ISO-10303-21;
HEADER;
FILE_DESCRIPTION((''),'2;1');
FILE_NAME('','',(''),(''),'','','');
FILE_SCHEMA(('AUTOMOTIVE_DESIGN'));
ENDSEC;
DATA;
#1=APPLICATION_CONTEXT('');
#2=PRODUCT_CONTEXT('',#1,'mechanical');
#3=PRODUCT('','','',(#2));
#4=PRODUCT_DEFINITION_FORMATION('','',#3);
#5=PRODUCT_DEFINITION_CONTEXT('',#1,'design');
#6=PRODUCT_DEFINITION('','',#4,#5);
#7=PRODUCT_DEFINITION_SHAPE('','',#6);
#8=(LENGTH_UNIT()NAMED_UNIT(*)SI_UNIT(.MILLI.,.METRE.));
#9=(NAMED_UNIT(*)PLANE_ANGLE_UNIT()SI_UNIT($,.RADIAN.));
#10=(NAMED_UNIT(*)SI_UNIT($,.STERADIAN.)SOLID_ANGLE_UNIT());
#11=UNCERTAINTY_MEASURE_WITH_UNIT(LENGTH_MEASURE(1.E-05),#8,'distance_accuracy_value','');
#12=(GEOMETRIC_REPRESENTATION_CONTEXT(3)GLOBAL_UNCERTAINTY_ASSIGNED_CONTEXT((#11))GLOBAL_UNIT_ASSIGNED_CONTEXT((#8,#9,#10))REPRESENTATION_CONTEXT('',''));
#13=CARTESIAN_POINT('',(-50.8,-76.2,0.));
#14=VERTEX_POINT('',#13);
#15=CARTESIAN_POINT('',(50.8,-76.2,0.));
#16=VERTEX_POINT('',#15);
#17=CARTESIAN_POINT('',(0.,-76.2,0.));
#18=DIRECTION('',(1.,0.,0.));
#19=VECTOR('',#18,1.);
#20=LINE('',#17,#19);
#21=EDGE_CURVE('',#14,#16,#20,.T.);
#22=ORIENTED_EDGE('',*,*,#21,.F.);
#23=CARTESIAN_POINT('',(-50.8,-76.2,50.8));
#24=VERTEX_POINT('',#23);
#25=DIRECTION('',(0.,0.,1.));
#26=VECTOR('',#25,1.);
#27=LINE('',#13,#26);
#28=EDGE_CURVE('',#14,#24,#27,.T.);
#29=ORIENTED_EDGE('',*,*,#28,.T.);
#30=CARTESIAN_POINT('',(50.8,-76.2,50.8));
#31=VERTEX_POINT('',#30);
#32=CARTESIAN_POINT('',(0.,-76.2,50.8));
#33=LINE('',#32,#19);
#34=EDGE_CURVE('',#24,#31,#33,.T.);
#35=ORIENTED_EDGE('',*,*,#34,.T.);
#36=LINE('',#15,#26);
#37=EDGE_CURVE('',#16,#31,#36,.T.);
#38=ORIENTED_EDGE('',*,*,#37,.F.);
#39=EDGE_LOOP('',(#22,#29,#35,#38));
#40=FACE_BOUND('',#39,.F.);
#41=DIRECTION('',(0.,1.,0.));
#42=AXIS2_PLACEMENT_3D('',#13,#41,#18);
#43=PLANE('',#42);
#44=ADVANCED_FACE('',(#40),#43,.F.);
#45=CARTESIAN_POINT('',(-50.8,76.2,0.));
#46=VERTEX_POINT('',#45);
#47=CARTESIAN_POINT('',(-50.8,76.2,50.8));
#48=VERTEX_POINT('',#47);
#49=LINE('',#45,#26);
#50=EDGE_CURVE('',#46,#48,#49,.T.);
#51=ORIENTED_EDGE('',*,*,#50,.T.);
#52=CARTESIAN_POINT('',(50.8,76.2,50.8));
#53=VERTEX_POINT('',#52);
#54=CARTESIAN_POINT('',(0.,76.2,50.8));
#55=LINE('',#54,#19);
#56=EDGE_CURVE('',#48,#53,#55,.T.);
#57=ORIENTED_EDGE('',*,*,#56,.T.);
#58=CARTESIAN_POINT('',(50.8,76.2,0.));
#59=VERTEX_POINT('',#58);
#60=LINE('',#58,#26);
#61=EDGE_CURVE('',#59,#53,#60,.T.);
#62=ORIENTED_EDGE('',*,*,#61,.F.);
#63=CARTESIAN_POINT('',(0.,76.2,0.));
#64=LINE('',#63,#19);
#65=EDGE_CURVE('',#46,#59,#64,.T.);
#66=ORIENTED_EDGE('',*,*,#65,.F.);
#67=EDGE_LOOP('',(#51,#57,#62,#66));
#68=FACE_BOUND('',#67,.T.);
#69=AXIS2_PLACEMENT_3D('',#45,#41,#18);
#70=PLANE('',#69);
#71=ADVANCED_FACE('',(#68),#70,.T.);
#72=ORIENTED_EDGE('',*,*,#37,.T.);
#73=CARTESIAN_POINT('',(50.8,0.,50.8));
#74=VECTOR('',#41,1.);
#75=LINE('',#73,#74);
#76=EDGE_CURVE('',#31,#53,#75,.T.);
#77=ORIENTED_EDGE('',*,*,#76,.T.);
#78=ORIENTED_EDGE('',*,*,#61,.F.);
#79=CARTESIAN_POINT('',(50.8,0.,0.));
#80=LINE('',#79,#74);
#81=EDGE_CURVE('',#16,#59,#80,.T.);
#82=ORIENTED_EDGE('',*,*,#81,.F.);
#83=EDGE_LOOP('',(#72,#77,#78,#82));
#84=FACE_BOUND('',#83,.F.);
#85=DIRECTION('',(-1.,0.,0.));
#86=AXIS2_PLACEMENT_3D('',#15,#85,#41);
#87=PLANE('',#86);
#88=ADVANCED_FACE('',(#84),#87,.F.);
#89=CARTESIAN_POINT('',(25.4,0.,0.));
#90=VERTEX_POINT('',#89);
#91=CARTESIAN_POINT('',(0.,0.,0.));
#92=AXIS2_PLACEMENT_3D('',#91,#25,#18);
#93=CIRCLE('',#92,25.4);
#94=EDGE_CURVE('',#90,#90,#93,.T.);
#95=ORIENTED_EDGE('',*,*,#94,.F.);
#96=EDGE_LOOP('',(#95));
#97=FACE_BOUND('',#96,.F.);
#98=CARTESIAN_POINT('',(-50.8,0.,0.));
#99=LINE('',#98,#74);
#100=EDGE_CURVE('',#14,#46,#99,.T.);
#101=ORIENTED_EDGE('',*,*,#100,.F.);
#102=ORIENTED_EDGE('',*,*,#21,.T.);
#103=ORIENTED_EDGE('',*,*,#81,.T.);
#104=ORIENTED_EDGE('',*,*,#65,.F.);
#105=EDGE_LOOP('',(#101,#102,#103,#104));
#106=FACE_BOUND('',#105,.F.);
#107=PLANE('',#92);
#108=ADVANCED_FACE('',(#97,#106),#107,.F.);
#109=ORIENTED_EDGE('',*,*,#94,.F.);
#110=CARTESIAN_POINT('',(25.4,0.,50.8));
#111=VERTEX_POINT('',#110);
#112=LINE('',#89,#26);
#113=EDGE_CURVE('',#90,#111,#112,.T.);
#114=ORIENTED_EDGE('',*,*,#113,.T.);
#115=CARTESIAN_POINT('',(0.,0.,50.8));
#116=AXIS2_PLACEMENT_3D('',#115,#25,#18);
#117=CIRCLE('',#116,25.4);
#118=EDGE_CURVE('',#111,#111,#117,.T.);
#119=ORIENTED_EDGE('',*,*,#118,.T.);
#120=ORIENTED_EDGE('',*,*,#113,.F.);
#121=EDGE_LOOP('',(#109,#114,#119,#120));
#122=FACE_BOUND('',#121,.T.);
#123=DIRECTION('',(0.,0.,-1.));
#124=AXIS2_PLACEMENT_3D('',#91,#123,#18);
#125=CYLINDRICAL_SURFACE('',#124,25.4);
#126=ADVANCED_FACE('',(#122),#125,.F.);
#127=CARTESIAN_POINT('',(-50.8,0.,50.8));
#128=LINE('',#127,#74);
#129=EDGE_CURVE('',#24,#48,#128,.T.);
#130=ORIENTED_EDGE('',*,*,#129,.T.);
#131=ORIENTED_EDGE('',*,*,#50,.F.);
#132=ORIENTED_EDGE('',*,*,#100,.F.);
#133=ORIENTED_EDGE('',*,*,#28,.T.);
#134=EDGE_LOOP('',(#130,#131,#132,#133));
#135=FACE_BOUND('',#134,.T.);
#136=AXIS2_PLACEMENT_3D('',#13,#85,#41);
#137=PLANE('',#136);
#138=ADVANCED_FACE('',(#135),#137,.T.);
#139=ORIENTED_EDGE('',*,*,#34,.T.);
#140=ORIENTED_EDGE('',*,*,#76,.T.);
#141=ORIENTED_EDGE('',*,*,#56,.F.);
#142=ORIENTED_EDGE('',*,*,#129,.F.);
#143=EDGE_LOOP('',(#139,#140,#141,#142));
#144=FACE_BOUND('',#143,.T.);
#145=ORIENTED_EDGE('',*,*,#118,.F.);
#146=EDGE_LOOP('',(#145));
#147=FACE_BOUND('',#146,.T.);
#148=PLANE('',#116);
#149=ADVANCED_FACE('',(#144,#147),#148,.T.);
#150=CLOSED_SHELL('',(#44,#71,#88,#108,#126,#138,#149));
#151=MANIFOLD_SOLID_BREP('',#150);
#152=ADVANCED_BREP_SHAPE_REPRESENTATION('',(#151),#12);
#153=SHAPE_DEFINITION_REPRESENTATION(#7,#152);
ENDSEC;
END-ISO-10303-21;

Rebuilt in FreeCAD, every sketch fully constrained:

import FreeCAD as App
import Part
import Sketcher
Q = App.Units.Quantity


def add_polygon(sketch, points):
    """Adds a closed chain of lines whose ends are joined by coincident constraints."""
    first, n = sketch.GeometryCount, len(points)
    for a, b in zip(points, points[1:] + points[:1]):
        sketch.addGeometry(Part.LineSegment(App.Vector(*a, 0), App.Vector(*b, 0)), False)
    for i in range(n):
        sketch.addConstraint(Sketcher.Constraint("Coincident", first + i, 2, first + (i + 1) % n, 1))

doc = App.newDocument("Part")
params = doc.addObject("Spreadsheet::Sheet", "Params")
for row, (alias, value) in enumerate([
    ("sketch1_diameter", "2 in"),
    ("sketch1_width", "4 in"),
    ("sketch1_height", "6 in"),
    ("pad1_length", "2 in"),
], start=1):
    params.set(f"A{row}", alias)
    params.set(f"B{row}", "=" + value)
    params.setAlias(f"B{row}", alias)

body = doc.addObject("PartDesign::Body", "Body")

sketch1 = body.newObject("Sketcher::SketchObject", "Sketch")
sketch1.AttachmentSupport = (doc.getObject("XY_Plane"), [""])
sketch1.MapMode = "FlatFace"
add_polygon(sketch1, [(-51, 76), (-51, -76), (51, -76), (51, 76)])
sketch1.addGeometry(Part.Circle(App.Vector(0, 0, 0), App.Vector(0, 0, 1), 25), False)
sketch1.addConstraint([
    Sketcher.Constraint("Vertical", 0),
    Sketcher.Constraint("Horizontal", 1),
    Sketcher.Constraint("Vertical", 2),
    Sketcher.Constraint("Horizontal", 3),
    Sketcher.Constraint("Coincident", 4, 3, -1, 1),
    Sketcher.Constraint("Symmetric", 0, 2, 2, 2, -1, 1),
    Sketcher.Constraint("Diameter", 4, Q("2 in")),
    Sketcher.Constraint("DistanceX", 1, 1, 1, 2, Q("4 in")),
    Sketcher.Constraint("DistanceY", 0, 2, 0, 1, Q("6 in")),
])
sketch1.setExpression("Constraints[10]", "Params.sketch1_diameter")
sketch1.setExpression("Constraints[11]", "Params.sketch1_width")
sketch1.setExpression("Constraints[12]", "Params.sketch1_height")
pad1 = body.newObject("PartDesign::Pad", "Pad")
pad1.Profile = sketch1
pad1.setExpression("Length", "Params.pad1_length")

doc.recompute()
